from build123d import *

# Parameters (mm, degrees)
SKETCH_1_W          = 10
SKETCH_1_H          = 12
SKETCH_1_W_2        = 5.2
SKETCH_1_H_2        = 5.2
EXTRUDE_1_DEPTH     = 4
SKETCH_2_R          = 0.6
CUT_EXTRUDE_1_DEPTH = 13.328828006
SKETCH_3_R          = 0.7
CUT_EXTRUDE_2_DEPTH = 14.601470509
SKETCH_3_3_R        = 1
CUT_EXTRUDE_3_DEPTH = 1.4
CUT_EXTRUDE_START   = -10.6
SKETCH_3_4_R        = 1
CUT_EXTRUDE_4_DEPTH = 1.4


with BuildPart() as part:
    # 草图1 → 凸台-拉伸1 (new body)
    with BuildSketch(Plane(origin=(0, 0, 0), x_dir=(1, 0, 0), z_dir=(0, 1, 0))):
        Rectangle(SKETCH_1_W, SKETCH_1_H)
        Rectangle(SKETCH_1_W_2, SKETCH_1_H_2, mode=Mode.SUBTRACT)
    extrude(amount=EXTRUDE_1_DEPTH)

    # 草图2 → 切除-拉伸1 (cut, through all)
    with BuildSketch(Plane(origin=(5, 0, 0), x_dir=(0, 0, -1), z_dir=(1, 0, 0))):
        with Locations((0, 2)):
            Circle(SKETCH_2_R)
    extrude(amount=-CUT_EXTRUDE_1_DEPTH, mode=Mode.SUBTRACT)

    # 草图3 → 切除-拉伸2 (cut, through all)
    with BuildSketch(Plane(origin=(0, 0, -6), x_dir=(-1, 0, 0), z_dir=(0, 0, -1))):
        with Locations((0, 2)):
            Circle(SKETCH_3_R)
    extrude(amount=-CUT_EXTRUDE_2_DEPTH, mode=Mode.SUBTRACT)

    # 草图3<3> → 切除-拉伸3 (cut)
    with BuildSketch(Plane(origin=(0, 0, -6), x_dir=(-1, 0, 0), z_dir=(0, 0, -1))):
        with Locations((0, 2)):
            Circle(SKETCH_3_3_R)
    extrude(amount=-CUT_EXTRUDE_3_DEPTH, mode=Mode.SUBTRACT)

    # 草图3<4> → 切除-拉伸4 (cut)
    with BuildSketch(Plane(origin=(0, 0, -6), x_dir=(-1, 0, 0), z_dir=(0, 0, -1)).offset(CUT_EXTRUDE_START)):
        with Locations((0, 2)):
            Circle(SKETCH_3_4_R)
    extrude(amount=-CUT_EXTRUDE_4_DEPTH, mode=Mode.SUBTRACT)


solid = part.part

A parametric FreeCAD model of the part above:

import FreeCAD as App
import Part
import Sketcher

V = App.Vector
Q = App.Units.Quantity


def add_polygon(sketch, points):
    """Adds a closed chain of lines whose ends are joined by coincident constraints."""
    first, n = sketch.GeometryCount, len(points)
    for a, b in zip(points, points[1:] + points[:1]):
        sketch.addGeometry(Part.LineSegment(App.Vector(*a, 0), App.Vector(*b, 0)), False)
    for i in range(n):
        sketch.addConstraint(Sketcher.Constraint("Coincident", first + i, 2, first + (i + 1) % n, 1))

doc = App.newDocument("Part")
body = doc.addObject("PartDesign::Body", "Body")

sketch1 = doc.addObject("Sketcher::SketchObject", "Sketch")
body.addObject(sketch1)
sketch1.AttachmentSupport = (doc.XZ_Plane, [""])
sketch1.MapMode = "FlatFace"
add_polygon(sketch1, [(-5, -6), (-5, 6), (5, 6), (5, -6)])
add_polygon(sketch1, [(2.6, 2.6), (-2.6, 2.6), (-2.6, -2.6), (2.6, -2.6)])
sketch1.addConstraint([
    Sketcher.Constraint("Vertical", 0),
    Sketcher.Constraint("Horizontal", 1),
    Sketcher.Constraint("Vertical", 2),
    Sketcher.Constraint("Horizontal", 3),
    Sketcher.Constraint("Horizontal", 4),
    Sketcher.Constraint("Vertical", 5),
    Sketcher.Constraint("Horizontal", 6),
    Sketcher.Constraint("Vertical", 7),
    Sketcher.Constraint("Symmetric", 0, 2, 2, 2, -1, 1),
    Sketcher.Constraint("Symmetric", 4, 2, 6, 2, -1, 1),
    Sketcher.Constraint("Equal", 6, 5),
    Sketcher.Constraint("DistanceX", 1, 1, 1, 2, Q("10 mm")),
    Sketcher.Constraint("DistanceY", 0, 1, 0, 2, Q("12 mm")),
    Sketcher.Constraint("DistanceX", 4, 2, 4, 1, Q("5.2 mm")),
])
pad1 = doc.addObject("PartDesign::Pad", "Pad")
body.addObject(pad1)
pad1.Profile = sketch1
pad1.Length = 4
pad1.Reversed = True

sketch2 = doc.addObject("Sketcher::SketchObject", "Sketch001")
body.addObject(sketch2)
sketch2.AttachmentSupport = (doc.YZ_Plane, [""])
sketch2.MapMode = "FlatFace"
sketch2.AttachmentOffset = App.Placement(V(0, 0, 5), App.Rotation())
sketch2.addGeometry(Part.Circle(V(2, 0, 0), V(0, 0, 1), 0.6), False)
sketch2.addConstraint([
    Sketcher.Constraint("PointOnObject", 0, 3, -1),
    Sketcher.Constraint("Diameter", 0, Q("1.2 mm")),
    Sketcher.Constraint("DistanceX", -1, 1, 0, 3, Q("2 mm")),
])
pocket1 = doc.addObject("PartDesign::Pocket", "Pocket")
body.addObject(pocket1)
pocket1.Profile = sketch2
pocket1.Type = "ThroughAll"

sketch3 = doc.addObject("Sketcher::SketchObject", "Sketch002")
body.addObject(sketch3)
sketch3.AttachmentSupport = (doc.XY_Plane, [""])
sketch3.MapMode = "FlatFace"
sketch3.AttachmentOffset = App.Placement(V(0, 0, -6), App.Rotation())
sketch3.addGeometry(Part.Circle(V(0, 2, 0), V(0, 0, 1), 0.7), False)
sketch3.addConstraint([
    Sketcher.Constraint("PointOnObject", 0, 3, -2),
    Sketcher.Constraint("Diameter", 0, Q("1.4 mm")),
    Sketcher.Constraint("DistanceY", -1, 1, 0, 3, Q("2 mm")),
])
pocket2 = doc.addObject("PartDesign::Pocket", "Pocket001")
body.addObject(pocket2)
pocket2.Profile = sketch3
pocket2.Type = "ThroughAll"
pocket2.Reversed = True

sketch4 = doc.addObject("Sketcher::SketchObject", "Sketch003")
body.addObject(sketch4)
sketch4.AttachmentSupport = (doc.XY_Plane, [""])
sketch4.MapMode = "FlatFace"
sketch4.AttachmentOffset = App.Placement(V(0, 0, -6), App.Rotation())
sketch4.addGeometry(Part.Circle(V(0, 2, 0), V(0, 0, 1), 1), False)
sketch4.addConstraint([
    Sketcher.Constraint("PointOnObject", 0, 3, -2),
    Sketcher.Constraint("Diameter", 0, Q("2 mm")),
    Sketcher.Constraint("DistanceY", -1, 1, 0, 3, Q("2 mm")),
])
pocket3 = doc.addObject("PartDesign::Pocket", "Pocket002")
body.addObject(pocket3)
pocket3.Profile = sketch4
pocket3.Length = 1.4
pocket3.Reversed = True

sketch5 = doc.addObject("Sketcher::SketchObject", "Sketch004")
body.addObject(sketch5)
sketch5.AttachmentSupport = (doc.XY_Plane, [""])
sketch5.MapMode = "FlatFace"
sketch5.AttachmentOffset = App.Placement(V(0, 0, 4.6), App.Rotation())
sketch5.addGeometry(Part.Circle(V(0, 2, 0), V(0, 0, 1), 1), False)
sketch5.addConstraint([
    Sketcher.Constraint("PointOnObject", 0, 3, -2),
    Sketcher.Constraint("Diameter", 0, Q("2 mm")),
    Sketcher.Constraint("DistanceY", -1, 1, 0, 3, Q("2 mm")),
])
pocket4 = doc.addObject("PartDesign::Pocket", "Pocket003")
body.addObject(pocket4)
pocket4.Profile = sketch5
pocket4.Length = 1.4
pocket4.Reversed = True

doc.recompute()
